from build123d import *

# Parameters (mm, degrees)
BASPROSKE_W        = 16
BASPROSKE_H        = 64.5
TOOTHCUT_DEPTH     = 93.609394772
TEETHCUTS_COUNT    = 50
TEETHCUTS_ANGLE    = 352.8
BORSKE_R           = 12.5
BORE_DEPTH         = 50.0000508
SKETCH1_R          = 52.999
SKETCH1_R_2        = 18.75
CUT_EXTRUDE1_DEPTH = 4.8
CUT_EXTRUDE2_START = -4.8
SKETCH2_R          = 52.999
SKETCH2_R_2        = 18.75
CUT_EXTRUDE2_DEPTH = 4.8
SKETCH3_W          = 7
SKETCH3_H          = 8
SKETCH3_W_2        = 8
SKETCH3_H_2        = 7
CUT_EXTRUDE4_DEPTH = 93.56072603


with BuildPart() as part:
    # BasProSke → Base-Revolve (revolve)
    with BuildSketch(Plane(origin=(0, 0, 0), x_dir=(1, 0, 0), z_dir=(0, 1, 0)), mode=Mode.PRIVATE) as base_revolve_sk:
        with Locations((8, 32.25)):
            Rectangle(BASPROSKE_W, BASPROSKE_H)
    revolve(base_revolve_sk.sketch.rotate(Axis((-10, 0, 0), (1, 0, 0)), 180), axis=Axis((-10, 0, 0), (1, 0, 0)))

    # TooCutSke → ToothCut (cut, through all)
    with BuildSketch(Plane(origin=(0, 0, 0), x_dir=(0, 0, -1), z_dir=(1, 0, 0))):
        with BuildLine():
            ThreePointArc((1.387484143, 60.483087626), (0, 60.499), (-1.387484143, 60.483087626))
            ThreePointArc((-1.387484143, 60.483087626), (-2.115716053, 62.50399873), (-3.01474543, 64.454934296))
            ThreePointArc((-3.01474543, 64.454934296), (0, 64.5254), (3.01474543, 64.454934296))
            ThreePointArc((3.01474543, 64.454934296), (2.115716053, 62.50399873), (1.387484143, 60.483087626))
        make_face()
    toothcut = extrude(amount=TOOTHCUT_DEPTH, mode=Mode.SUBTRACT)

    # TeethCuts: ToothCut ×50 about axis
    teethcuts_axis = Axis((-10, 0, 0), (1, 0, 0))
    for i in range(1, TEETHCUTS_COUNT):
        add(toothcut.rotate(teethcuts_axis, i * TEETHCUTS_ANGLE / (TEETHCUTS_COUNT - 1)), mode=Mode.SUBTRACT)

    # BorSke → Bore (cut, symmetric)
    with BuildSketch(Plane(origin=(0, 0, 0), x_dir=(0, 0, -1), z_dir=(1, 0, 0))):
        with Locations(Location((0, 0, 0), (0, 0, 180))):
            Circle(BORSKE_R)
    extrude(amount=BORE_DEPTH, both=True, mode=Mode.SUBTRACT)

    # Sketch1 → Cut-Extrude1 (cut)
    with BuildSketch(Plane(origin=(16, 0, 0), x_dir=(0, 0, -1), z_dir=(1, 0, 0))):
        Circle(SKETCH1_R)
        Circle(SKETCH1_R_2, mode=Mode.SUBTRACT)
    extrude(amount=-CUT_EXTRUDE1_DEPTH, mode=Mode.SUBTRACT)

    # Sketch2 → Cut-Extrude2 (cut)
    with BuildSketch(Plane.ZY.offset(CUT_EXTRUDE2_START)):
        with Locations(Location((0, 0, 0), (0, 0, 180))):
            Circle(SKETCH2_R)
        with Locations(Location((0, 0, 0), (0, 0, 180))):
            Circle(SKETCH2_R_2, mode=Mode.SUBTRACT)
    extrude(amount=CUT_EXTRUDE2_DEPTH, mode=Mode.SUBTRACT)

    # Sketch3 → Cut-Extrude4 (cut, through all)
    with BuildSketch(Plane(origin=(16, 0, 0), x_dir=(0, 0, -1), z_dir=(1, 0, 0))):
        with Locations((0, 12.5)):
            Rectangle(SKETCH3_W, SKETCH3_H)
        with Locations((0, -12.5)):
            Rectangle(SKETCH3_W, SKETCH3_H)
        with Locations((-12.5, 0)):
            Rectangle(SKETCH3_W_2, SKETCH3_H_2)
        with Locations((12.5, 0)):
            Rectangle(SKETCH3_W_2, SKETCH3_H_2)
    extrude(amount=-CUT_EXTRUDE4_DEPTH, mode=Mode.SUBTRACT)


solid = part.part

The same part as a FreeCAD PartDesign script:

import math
import FreeCAD as App
import Part
import Sketcher

doc = App.newDocument("Part")
body = doc.addObject("PartDesign::Body", "Body")

# Sketch on XZ plane
sketch1 = body.newObject("Sketcher::SketchObject", "Sketch")
sketch1.AttachmentSupport = (doc.getObject("XZ_Plane"), [""])
sketch1.MapMode = "FlatFace"
sketch1.addGeometry([
    Part.LineSegment(App.Vector(0, -64, 0), App.Vector(0, 0, 0)),
    Part.LineSegment(App.Vector(0, 0, 0), App.Vector(16, 0, 0)),
    Part.LineSegment(App.Vector(16, 0, 0), App.Vector(16, -64, 0)),
    Part.LineSegment(App.Vector(16, -64, 0), App.Vector(0, -64, 0)),
], False)
sketch1.addConstraint([
    Sketcher.Constraint("Coincident", 0, 2, 1, 1),
    Sketcher.Constraint("Coincident", 1, 2, 2, 1),
    Sketcher.Constraint("Coincident", 2, 2, 3, 1),
    Sketcher.Constraint("Coincident", 3, 2, 0, 1),
    Sketcher.Constraint("Vertical", 0),
    Sketcher.Constraint("Horizontal", 1),
    Sketcher.Constraint("Vertical", 2),
    Sketcher.Constraint("Horizontal", 3),
    Sketcher.Constraint("Coincident", 0, 2, -1, 1),
    Sketcher.Constraint("DistanceX", 1, 1, 1, 2, 16.0),
    Sketcher.Constraint("DistanceY", 0, 1, 0, 2, 64.5),
])
revolution = body.newObject("PartDesign::Revolution", "Revolution")
revolution.Profile = sketch1
revolution.ReferenceAxis = (sketch1, ["H_Axis"])
revolution.Angle = 360

# Sketch on YZ plane
sketch2 = body.newObject("Sketcher::SketchObject", "Sketch001")
sketch2.AttachmentSupport = (doc.getObject("YZ_Plane"), [""])
sketch2.MapMode = "FlatFace"
sketch2.addGeometry([
    Part.ArcOfCircle(Part.Circle(App.Vector(0, 0, 0), App.Vector(0, 0, 1), 60.5), math.radians(-1.31), math.radians(1.31)),
    Part.ArcOfCircle(Part.Circle(App.Vector(53, -25.2, 0), App.Vector(0, 0, 1), 25), math.radians(62.8), math.radians(72.65)),
    Part.ArcOfCircle(Part.Circle(App.Vector(0, 0, 0), App.Vector(0, 0, 1), 64.5), math.radians(-2.68), math.radians(2.68)),
    Part.ArcOfCircle(Part.Circle(App.Vector(53, 25.2, 0), App.Vector(0, 0, 1), 25), math.radians(-72.65), math.radians(-62.8)),
], False)
sketch2.addConstraint([
    Sketcher.Constraint("Coincident", 0, 1, 1, 2),
    Sketcher.Constraint("Coincident", 1, 1, 2, 1),
    Sketcher.Constraint("Coincident", 2, 2, 3, 2),
    Sketcher.Constraint("Coincident", 3, 1, 0, 2),
    Sketcher.Constraint("Coincident", 0, 3, -1, 1),
    Sketcher.Constraint("Coincident", 2, 3, -1, 1),
    Sketcher.Constraint("Equal", 1, 3),
    Sketcher.Constraint("Symmetric", 1, 3, 3, 3, -1),
    Sketcher.Constraint("Radius", 1, 25.0),
    Sketcher.Constraint("Radius", 0, 60.499001),
    Sketcher.Constraint("Radius", 2, 64.5254),
    Sketcher.Constraint("DistanceX", -1, 1, 1, 3, 53.02613),
    Sketcher.Constraint("DistanceY", 0, 1, 3, 3, 26.636942),
])
pocket1 = body.newObject("PartDesign::Pocket", "Pocket")
pocket1.Profile = sketch2
pocket1.Type = "ThroughAll"
pocket1.Reversed = True
doc.recompute()

polarpattern = body.newObject("PartDesign::PolarPattern", "PolarPattern")
polarpattern.Originals = [pocket1]
polarpattern.Axis = (doc.getObject("X_Axis"), [""])
polarpattern.Angle = 360
polarpattern.Occurrences = 50
body.Tip = polarpattern

# Sketch on YZ plane
sketch3 = body.newObject("Sketcher::SketchObject", "Sketch002")
sketch3.AttachmentSupport = (doc.getObject("YZ_Plane"), [""])
sketch3.MapMode = "FlatFace"
sketch3.addGeometry(Part.Circle(App.Vector(0, 0, 0), App.Vector(0, 0, 1), 12), False)
sketch3.addConstraint([
    Sketcher.Constraint("Coincident", 0, 3, -1, 1),
    Sketcher.Constraint("Diameter", 0, 25.0),
])
pocket2 = body.newObject("PartDesign::Pocket", "Pocket001")
pocket2.Profile = sketch3
pocket2.Length = 100.000102
pocket2.Midplane = True

# Sketch on YZ plane
sketch4 = body.newObject("Sketcher::SketchObject", "Sketch003")
sketch4.AttachmentSupport = (doc.getObject("YZ_Plane"), [""])
sketch4.MapMode = "FlatFace"
sketch4.AttachmentOffset = App.Placement(App.Vector(0, 0, 16), App.Rotation())
sketch4.addGeometry([
    Part.Circle(App.Vector(0, 0, 0), App.Vector(0, 0, 1), 53),
    Part.Circle(App.Vector(0, 0, 0), App.Vector(0, 0, 1), 19),
], False)
sketch4.addConstraint([
    Sketcher.Constraint("Coincident", 0, 3, -1, 1),
    Sketcher.Constraint("Coincident", 1, 3, -1, 1),
    Sketcher.Constraint("Diameter", 1, 37.5),
    Sketcher.Constraint("Diameter", 0, 105.998),
])
pocket3 = body.newObject("PartDesign::Pocket", "Pocket002")
pocket3.Profile = sketch4
pocket3.Length = 4.8

# Sketch on YZ plane
sketch5 = body.newObject("Sketcher::SketchObject", "Sketch004")
sketch5.AttachmentSupport = (doc.getObject("YZ_Plane"), [""])
sketch5.MapMode = "FlatFace"
sketch5.AttachmentOffset = App.Placement(App.Vector(0, 0, 4.8), App.Rotation())
sketch5.addGeometry([
    Part.Circle(App.Vector(0, 0, 0), App.Vector(0, 0, 1), 53),
    Part.Circle(App.Vector(0, 0, 0), App.Vector(0, 0, 1), 19),
], False)
sketch5.addConstraint([
    Sketcher.Constraint("Coincident", 0, 3, -1, 1),
    Sketcher.Constraint("Coincident", 1, 3, -1, 1),
    Sketcher.Constraint("Diameter", 1, 37.5),
    Sketcher.Constraint("Diameter", 0, 105.998),
])
pocket4 = body.newObject("PartDesign::Pocket", "Pocket003")
pocket4.Profile = sketch5
pocket4.Length = 4.8

# Sketch on YZ plane
sketch6 = body.newObject("Sketcher::SketchObject", "Sketch005")
sketch6.AttachmentSupport = (doc.getObject("YZ_Plane"), [""])
sketch6.MapMode = "FlatFace"
sketch6.AttachmentOffset = App.Placement(App.Vector(0, 0, 16), App.Rotation())
sketch6.addGeometry([
    Part.LineSegment(App.Vector(16, 4, 0), App.Vector(8, 4, 0)),  # 0
    Part.LineSegment(App.Vector(8, 4, 0), App.Vector(8, -4, 0)),  # 1
    Part.LineSegment(App.Vector(8, -4, 0), App.Vector(16, -4, 0)),  # 2
    Part.LineSegment(App.Vector(16, -4, 0), App.Vector(16, 4, 0)),  # 3
    Part.LineSegment(App.Vector(-8, 4, 0), App.Vector(-16, 4, 0)),  # 4
    Part.LineSegment(App.Vector(-16, 4, 0), App.Vector(-16, -4, 0)),  # 5
    Part.LineSegment(App.Vector(-16, -4, 0), App.Vector(-8, -4, 0)),  # 6
    Part.LineSegment(App.Vector(-8, -4, 0), App.Vector(-8, 4, 0)),  # 7
    Part.LineSegment(App.Vector(4, 16, 0), App.Vector(-4, 16, 0)),  # 8
    Part.LineSegment(App.Vector(-4, 16, 0), App.Vector(-4, 8, 0)),  # 9
    Part.LineSegment(App.Vector(-4, 8, 0), App.Vector(4, 8, 0)),  # 10
    Part.LineSegment(App.Vector(4, 8, 0), App.Vector(4, 16, 0)),  # 11
    Part.LineSegment(App.Vector(4, -8, 0), App.Vector(-4, -8, 0)),  # 12
    Part.LineSegment(App.Vector(-4, -8, 0), App.Vector(-4, -16, 0)),  # 13
    Part.LineSegment(App.Vector(-4, -16, 0), App.Vector(4, -16, 0)),  # 14
    Part.LineSegment(App.Vector(4, -16, 0), App.Vector(4, -8, 0)),  # 15
], False)
sketch6.addConstraint([
    Sketcher.Constraint("Coincident", 0, 2, 1, 1),
    Sketcher.Constraint("Coincident", 1, 2, 2, 1),
    Sketcher.Constraint("Coincident", 2, 2, 3, 1),
    Sketcher.Constraint("Coincident", 3, 2, 0, 1),
    Sketcher.Constraint("Coincident", 4, 2, 5, 1),
    Sketcher.Constraint("Coincident", 5, 2, 6, 1),
    Sketcher.Constraint("Coincident", 6, 2, 7, 1),
    Sketcher.Constraint("Coincident", 7, 2, 4, 1),
    Sketcher.Constraint("Coincident", 8, 2, 9, 1),
    Sketcher.Constraint("Coincident", 9, 2, 10, 1),
    Sketcher.Constraint("Coincident", 10, 2, 11, 1),
    Sketcher.Constraint("Coincident", 11, 2, 8, 1),
    Sketcher.Constraint("Coincident", 12, 2, 13, 1),
    Sketcher.Constraint("Coincident", 13, 2, 14, 1),
    Sketcher.Constraint("Coincident", 14, 2, 15, 1),
    Sketcher.Constraint("Coincident", 15, 2, 12, 1),
    Sketcher.Constraint("Horizontal", 0),
    Sketcher.Constraint("Vertical", 1),
    Sketcher.Constraint("Horizontal", 2),
    Sketcher.Constraint("Vertical", 3),
    Sketcher.Constraint("Horizontal", 4),
    Sketcher.Constraint("Vertical", 5),
    Sketcher.Constraint("Horizontal", 6),
    Sketcher.Constraint("Vertical", 7),
    Sketcher.Constraint("Horizontal", 8),
    Sketcher.Constraint("Vertical", 9),
    Sketcher.Constraint("Horizontal", 10),
    Sketcher.Constraint("Vertical", 11),
    Sketcher.Constraint("Horizontal", 12),
    Sketcher.Constraint("Vertical", 13),
    Sketcher.Constraint("Horizontal", 14),
    Sketcher.Constraint("Vertical", 15),
    Sketcher.Constraint("Symmetric", 2, 2, 4, 2, -1, 1),
    Sketcher.Constraint("Symmetric", 0, 2, 6, 2, -1, 1),
    Sketcher.Constraint("Symmetric", 10, 2, 12, 2, -1, 1),
    Sketcher.Constraint("Symmetric", 8, 2, 14, 2, -1, 1),
    Sketcher.Constraint("Horizontal", 3, 2, 4, 2),
    Sketcher.Constraint("Vertical", 9, 2, 12, 2),
    Sketcher.Constraint("Equal", 14, 1),
    Sketcher.Constraint("Equal", 6, 9),
    Sketcher.Constraint("DistanceX", 0, 2, 0, 1, 8.0),
    Sketcher.Constraint("DistanceX", 8, 2, 8, 1, 7.0),
    Sketcher.Constraint("DistanceX", 4, 2, 0, 2, 25.0),
    Sketcher.Constraint("DistanceY", 7, 2, 8, 2, 13.0),
])
pocket5 = body.newObject("PartDesign::Pocket", "Pocket004")
pocket5.Profile = sketch6
pocket5.Type = "ThroughAll"

doc.recompute()
